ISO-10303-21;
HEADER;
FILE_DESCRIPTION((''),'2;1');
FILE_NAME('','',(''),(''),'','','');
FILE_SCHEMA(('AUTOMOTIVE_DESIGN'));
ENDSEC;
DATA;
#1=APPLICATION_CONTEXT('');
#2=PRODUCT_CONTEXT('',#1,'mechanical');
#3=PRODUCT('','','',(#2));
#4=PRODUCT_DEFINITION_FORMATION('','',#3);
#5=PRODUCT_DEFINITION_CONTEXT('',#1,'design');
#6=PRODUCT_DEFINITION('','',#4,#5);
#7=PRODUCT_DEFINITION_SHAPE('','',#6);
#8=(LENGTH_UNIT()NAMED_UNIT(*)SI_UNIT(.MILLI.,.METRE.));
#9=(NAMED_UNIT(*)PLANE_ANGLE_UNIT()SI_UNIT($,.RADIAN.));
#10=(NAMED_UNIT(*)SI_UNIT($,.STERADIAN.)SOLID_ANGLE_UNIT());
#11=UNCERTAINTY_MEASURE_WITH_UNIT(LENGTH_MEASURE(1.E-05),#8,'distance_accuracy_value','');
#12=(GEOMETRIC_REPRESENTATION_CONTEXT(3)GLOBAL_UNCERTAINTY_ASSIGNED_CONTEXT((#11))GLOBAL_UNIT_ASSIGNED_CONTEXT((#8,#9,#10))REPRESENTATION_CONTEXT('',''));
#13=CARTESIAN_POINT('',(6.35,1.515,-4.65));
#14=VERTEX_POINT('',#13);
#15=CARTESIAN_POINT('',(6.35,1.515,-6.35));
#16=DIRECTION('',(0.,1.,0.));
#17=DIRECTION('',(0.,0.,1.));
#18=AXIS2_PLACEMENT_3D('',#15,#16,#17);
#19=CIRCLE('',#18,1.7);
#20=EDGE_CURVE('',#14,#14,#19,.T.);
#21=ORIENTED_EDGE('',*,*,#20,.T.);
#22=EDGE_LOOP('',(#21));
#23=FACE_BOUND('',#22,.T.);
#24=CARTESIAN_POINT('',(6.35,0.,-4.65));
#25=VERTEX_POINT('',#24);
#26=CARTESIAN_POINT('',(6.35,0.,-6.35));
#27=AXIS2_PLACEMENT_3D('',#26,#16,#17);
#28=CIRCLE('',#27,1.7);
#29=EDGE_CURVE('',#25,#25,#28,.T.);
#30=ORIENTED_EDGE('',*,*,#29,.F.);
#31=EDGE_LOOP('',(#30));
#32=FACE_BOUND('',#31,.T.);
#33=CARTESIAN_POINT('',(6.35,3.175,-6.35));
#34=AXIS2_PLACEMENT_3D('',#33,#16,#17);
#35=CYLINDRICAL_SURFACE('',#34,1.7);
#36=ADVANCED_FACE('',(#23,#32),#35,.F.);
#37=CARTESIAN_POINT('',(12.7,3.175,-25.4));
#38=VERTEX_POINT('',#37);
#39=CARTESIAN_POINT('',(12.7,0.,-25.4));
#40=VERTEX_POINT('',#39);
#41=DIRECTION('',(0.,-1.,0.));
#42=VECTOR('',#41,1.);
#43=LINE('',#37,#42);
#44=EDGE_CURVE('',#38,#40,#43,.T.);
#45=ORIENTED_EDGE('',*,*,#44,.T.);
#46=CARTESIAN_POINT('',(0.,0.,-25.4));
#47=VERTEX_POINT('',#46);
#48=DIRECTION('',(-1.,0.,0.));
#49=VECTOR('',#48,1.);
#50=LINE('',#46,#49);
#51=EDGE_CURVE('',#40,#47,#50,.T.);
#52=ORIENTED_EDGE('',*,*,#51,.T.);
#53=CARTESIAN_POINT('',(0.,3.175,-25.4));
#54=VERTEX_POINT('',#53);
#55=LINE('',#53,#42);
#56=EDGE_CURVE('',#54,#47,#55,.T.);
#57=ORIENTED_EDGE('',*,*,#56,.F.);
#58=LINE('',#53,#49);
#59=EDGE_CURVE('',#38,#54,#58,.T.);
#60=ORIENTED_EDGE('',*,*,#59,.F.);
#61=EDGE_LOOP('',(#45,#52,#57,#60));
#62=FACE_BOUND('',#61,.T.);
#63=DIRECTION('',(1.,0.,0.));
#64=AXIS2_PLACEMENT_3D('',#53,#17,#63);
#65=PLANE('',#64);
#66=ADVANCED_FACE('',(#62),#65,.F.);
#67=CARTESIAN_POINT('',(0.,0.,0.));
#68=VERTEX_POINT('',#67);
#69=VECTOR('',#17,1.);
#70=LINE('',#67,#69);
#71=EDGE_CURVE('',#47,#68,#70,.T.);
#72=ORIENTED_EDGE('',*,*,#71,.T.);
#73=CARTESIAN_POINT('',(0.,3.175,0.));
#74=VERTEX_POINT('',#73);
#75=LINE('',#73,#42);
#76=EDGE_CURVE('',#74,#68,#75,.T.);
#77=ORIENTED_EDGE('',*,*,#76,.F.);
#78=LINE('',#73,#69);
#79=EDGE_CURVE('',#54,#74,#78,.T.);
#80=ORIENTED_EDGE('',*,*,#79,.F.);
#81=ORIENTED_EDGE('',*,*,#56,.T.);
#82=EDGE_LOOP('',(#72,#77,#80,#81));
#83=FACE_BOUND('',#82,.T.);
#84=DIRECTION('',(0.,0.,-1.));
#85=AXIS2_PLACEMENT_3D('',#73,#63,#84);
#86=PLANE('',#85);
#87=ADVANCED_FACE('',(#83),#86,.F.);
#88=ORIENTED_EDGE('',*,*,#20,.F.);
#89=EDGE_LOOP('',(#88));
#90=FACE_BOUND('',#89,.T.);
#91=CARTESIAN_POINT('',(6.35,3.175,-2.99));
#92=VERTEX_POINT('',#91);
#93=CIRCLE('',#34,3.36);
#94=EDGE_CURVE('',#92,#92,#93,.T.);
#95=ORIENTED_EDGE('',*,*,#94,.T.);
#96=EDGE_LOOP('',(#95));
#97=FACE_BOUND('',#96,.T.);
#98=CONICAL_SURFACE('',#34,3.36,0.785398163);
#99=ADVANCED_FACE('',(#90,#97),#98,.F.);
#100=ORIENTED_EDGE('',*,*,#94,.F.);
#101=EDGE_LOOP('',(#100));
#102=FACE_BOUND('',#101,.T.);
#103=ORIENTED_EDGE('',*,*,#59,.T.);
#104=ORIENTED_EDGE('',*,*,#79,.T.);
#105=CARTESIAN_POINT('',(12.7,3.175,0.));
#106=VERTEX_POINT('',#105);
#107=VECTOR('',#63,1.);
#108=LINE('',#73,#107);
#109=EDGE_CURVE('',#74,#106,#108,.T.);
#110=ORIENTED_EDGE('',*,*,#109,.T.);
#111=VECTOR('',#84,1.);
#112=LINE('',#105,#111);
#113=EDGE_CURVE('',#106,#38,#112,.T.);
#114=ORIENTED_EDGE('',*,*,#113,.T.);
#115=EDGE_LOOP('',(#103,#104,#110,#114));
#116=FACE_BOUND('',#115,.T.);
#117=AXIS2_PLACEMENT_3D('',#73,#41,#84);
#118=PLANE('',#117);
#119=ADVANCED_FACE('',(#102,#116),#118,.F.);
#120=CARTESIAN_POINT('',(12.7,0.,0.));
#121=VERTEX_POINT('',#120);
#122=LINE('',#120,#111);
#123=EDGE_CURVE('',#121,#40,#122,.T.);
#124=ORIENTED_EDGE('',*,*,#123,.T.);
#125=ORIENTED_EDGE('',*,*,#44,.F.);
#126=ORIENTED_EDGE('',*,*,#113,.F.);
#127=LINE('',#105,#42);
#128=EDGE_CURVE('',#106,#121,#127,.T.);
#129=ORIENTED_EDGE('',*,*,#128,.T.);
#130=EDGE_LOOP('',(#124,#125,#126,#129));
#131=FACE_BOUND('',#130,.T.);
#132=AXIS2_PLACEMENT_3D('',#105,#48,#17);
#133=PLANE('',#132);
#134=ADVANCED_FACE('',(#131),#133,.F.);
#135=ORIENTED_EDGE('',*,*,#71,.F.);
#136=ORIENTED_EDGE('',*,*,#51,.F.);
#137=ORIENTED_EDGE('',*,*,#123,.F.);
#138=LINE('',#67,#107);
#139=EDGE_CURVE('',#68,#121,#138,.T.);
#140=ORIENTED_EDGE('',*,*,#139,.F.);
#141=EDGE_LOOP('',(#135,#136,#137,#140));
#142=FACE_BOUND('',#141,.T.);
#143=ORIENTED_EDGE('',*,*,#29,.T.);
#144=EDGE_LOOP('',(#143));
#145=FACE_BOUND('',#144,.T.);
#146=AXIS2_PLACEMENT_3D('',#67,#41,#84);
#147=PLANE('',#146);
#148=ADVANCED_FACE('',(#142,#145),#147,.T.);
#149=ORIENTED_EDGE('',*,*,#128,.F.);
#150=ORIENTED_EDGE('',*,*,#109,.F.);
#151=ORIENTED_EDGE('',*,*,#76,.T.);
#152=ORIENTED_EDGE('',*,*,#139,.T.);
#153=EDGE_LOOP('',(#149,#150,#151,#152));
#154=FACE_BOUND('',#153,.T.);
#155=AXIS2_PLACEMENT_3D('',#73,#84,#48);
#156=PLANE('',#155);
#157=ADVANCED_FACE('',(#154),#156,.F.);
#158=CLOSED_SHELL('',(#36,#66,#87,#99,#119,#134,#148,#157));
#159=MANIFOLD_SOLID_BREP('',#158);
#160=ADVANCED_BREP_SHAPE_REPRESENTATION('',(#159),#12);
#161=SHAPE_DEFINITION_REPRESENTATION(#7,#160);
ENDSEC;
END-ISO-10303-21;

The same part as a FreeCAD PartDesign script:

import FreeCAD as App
import Part
import Sketcher

V = App.Vector
Q = App.Units.Quantity


def add_polygon(sketch, points):
    """Adds a closed chain of lines whose ends are joined by coincident constraints."""
    first, n = sketch.GeometryCount, len(points)
    for a, b in zip(points, points[1:] + points[:1]):
        sketch.addGeometry(Part.LineSegment(App.Vector(*a, 0), App.Vector(*b, 0)), False)
    for i in range(n):
        sketch.addConstraint(Sketcher.Constraint("Coincident", first + i, 2, first + (i + 1) % n, 1))

doc = App.newDocument("Part")
body = doc.addObject("PartDesign::Body", "Body")

sketch1 = doc.addObject("Sketcher::SketchObject", "Sketch")
body.addObject(sketch1)
sketch1.AttachmentSupport = (doc.XZ_Plane, [""])
sketch1.MapMode = "FlatFace"
add_polygon(sketch1, [(0, -25), (0, 0), (13, 0), (13, -25)])
sketch1.addConstraint(Sketcher.Constraint("Vertical", 0))
sketch1.addConstraint(Sketcher.Constraint("Horizontal", 1))
sketch1.addConstraint(Sketcher.Constraint("Vertical", 2))
sketch1.addConstraint(Sketcher.Constraint("Horizontal", 3))
sketch1.addConstraint(Sketcher.Constraint("Coincident", 0, 2, -1, 1))
sketch1.addConstraint(Sketcher.Constraint("DistanceY", 0, 1, 0, 2, Q("1 in")))
sketch1.addConstraint(Sketcher.Constraint("DistanceX", 1, 1, 1, 2, Q("0.5 in")))
pad1 = doc.addObject("PartDesign::Pad", "Pad")
body.addObject(pad1)
pad1.Profile = sketch1
pad1.Length = Q("0.125 in")
pad1.Reversed = True

sketch2 = doc.addObject("Sketcher::SketchObject", "Sketch001")
body.addObject(sketch2)
sketch2.AttachmentSupport = (doc.YZ_Plane, [""])
sketch2.MapMode = "FlatFace"
sketch2.AttachmentOffset = App.Placement(V(0, 0, 0.25 * 25.4), App.Rotation())
add_polygon(sketch2, [(0, -6.3), (3.2, -6.3), (3.2, -3), (1.5, -4.7), (0, -4.7)])
sketch2.addGeometry(Part.LineSegment(V(3.2, -6.3, 0), V(0, -6.3, 0)), True)
sketch2.addConstraint(Sketcher.Constraint("Horizontal", 0))
sketch2.addConstraint(Sketcher.Constraint("Vertical", 1))
sketch2.addConstraint(Sketcher.Constraint("Horizontal", 3))
sketch2.addConstraint(Sketcher.Constraint("Vertical", 4))
sketch2.addConstraint(Sketcher.Constraint("Horizontal", 5))
sketch2.addConstraint(Sketcher.Constraint("Coincident", 5, 1, 0, 2))
sketch2.addConstraint(Sketcher.Constraint("PointOnObject", 3, 2, -2))
sketch2.addConstraint(Sketcher.Constraint("PointOnObject", 5, 2, -2))
sketch2.addConstraint(Sketcher.Constraint("Angle", 2, Q("-135 deg")))
sketch2.addConstraint(Sketcher.Constraint("DistanceX", 0, 1, 0, 2, Q("0.125 in")))
sketch2.addConstraint(Sketcher.Constraint("DistanceY", 0, 2, -1, 1, Q("0.25 in")))
sketch2.addConstraint(Sketcher.Constraint("DistanceX", 3, 2, 3, 1, Q("1.515 mm")))
sketch2.addConstraint(Sketcher.Constraint("DistanceY", 1, 1, 1, 2, Q("3.36 mm")))
groove = doc.addObject("PartDesign::Groove", "Groove")
body.addObject(groove)
groove.Profile = sketch2
groove.ReferenceAxis = (sketch2, ["Axis0"])
groove.Angle = 360

doc.recompute()
